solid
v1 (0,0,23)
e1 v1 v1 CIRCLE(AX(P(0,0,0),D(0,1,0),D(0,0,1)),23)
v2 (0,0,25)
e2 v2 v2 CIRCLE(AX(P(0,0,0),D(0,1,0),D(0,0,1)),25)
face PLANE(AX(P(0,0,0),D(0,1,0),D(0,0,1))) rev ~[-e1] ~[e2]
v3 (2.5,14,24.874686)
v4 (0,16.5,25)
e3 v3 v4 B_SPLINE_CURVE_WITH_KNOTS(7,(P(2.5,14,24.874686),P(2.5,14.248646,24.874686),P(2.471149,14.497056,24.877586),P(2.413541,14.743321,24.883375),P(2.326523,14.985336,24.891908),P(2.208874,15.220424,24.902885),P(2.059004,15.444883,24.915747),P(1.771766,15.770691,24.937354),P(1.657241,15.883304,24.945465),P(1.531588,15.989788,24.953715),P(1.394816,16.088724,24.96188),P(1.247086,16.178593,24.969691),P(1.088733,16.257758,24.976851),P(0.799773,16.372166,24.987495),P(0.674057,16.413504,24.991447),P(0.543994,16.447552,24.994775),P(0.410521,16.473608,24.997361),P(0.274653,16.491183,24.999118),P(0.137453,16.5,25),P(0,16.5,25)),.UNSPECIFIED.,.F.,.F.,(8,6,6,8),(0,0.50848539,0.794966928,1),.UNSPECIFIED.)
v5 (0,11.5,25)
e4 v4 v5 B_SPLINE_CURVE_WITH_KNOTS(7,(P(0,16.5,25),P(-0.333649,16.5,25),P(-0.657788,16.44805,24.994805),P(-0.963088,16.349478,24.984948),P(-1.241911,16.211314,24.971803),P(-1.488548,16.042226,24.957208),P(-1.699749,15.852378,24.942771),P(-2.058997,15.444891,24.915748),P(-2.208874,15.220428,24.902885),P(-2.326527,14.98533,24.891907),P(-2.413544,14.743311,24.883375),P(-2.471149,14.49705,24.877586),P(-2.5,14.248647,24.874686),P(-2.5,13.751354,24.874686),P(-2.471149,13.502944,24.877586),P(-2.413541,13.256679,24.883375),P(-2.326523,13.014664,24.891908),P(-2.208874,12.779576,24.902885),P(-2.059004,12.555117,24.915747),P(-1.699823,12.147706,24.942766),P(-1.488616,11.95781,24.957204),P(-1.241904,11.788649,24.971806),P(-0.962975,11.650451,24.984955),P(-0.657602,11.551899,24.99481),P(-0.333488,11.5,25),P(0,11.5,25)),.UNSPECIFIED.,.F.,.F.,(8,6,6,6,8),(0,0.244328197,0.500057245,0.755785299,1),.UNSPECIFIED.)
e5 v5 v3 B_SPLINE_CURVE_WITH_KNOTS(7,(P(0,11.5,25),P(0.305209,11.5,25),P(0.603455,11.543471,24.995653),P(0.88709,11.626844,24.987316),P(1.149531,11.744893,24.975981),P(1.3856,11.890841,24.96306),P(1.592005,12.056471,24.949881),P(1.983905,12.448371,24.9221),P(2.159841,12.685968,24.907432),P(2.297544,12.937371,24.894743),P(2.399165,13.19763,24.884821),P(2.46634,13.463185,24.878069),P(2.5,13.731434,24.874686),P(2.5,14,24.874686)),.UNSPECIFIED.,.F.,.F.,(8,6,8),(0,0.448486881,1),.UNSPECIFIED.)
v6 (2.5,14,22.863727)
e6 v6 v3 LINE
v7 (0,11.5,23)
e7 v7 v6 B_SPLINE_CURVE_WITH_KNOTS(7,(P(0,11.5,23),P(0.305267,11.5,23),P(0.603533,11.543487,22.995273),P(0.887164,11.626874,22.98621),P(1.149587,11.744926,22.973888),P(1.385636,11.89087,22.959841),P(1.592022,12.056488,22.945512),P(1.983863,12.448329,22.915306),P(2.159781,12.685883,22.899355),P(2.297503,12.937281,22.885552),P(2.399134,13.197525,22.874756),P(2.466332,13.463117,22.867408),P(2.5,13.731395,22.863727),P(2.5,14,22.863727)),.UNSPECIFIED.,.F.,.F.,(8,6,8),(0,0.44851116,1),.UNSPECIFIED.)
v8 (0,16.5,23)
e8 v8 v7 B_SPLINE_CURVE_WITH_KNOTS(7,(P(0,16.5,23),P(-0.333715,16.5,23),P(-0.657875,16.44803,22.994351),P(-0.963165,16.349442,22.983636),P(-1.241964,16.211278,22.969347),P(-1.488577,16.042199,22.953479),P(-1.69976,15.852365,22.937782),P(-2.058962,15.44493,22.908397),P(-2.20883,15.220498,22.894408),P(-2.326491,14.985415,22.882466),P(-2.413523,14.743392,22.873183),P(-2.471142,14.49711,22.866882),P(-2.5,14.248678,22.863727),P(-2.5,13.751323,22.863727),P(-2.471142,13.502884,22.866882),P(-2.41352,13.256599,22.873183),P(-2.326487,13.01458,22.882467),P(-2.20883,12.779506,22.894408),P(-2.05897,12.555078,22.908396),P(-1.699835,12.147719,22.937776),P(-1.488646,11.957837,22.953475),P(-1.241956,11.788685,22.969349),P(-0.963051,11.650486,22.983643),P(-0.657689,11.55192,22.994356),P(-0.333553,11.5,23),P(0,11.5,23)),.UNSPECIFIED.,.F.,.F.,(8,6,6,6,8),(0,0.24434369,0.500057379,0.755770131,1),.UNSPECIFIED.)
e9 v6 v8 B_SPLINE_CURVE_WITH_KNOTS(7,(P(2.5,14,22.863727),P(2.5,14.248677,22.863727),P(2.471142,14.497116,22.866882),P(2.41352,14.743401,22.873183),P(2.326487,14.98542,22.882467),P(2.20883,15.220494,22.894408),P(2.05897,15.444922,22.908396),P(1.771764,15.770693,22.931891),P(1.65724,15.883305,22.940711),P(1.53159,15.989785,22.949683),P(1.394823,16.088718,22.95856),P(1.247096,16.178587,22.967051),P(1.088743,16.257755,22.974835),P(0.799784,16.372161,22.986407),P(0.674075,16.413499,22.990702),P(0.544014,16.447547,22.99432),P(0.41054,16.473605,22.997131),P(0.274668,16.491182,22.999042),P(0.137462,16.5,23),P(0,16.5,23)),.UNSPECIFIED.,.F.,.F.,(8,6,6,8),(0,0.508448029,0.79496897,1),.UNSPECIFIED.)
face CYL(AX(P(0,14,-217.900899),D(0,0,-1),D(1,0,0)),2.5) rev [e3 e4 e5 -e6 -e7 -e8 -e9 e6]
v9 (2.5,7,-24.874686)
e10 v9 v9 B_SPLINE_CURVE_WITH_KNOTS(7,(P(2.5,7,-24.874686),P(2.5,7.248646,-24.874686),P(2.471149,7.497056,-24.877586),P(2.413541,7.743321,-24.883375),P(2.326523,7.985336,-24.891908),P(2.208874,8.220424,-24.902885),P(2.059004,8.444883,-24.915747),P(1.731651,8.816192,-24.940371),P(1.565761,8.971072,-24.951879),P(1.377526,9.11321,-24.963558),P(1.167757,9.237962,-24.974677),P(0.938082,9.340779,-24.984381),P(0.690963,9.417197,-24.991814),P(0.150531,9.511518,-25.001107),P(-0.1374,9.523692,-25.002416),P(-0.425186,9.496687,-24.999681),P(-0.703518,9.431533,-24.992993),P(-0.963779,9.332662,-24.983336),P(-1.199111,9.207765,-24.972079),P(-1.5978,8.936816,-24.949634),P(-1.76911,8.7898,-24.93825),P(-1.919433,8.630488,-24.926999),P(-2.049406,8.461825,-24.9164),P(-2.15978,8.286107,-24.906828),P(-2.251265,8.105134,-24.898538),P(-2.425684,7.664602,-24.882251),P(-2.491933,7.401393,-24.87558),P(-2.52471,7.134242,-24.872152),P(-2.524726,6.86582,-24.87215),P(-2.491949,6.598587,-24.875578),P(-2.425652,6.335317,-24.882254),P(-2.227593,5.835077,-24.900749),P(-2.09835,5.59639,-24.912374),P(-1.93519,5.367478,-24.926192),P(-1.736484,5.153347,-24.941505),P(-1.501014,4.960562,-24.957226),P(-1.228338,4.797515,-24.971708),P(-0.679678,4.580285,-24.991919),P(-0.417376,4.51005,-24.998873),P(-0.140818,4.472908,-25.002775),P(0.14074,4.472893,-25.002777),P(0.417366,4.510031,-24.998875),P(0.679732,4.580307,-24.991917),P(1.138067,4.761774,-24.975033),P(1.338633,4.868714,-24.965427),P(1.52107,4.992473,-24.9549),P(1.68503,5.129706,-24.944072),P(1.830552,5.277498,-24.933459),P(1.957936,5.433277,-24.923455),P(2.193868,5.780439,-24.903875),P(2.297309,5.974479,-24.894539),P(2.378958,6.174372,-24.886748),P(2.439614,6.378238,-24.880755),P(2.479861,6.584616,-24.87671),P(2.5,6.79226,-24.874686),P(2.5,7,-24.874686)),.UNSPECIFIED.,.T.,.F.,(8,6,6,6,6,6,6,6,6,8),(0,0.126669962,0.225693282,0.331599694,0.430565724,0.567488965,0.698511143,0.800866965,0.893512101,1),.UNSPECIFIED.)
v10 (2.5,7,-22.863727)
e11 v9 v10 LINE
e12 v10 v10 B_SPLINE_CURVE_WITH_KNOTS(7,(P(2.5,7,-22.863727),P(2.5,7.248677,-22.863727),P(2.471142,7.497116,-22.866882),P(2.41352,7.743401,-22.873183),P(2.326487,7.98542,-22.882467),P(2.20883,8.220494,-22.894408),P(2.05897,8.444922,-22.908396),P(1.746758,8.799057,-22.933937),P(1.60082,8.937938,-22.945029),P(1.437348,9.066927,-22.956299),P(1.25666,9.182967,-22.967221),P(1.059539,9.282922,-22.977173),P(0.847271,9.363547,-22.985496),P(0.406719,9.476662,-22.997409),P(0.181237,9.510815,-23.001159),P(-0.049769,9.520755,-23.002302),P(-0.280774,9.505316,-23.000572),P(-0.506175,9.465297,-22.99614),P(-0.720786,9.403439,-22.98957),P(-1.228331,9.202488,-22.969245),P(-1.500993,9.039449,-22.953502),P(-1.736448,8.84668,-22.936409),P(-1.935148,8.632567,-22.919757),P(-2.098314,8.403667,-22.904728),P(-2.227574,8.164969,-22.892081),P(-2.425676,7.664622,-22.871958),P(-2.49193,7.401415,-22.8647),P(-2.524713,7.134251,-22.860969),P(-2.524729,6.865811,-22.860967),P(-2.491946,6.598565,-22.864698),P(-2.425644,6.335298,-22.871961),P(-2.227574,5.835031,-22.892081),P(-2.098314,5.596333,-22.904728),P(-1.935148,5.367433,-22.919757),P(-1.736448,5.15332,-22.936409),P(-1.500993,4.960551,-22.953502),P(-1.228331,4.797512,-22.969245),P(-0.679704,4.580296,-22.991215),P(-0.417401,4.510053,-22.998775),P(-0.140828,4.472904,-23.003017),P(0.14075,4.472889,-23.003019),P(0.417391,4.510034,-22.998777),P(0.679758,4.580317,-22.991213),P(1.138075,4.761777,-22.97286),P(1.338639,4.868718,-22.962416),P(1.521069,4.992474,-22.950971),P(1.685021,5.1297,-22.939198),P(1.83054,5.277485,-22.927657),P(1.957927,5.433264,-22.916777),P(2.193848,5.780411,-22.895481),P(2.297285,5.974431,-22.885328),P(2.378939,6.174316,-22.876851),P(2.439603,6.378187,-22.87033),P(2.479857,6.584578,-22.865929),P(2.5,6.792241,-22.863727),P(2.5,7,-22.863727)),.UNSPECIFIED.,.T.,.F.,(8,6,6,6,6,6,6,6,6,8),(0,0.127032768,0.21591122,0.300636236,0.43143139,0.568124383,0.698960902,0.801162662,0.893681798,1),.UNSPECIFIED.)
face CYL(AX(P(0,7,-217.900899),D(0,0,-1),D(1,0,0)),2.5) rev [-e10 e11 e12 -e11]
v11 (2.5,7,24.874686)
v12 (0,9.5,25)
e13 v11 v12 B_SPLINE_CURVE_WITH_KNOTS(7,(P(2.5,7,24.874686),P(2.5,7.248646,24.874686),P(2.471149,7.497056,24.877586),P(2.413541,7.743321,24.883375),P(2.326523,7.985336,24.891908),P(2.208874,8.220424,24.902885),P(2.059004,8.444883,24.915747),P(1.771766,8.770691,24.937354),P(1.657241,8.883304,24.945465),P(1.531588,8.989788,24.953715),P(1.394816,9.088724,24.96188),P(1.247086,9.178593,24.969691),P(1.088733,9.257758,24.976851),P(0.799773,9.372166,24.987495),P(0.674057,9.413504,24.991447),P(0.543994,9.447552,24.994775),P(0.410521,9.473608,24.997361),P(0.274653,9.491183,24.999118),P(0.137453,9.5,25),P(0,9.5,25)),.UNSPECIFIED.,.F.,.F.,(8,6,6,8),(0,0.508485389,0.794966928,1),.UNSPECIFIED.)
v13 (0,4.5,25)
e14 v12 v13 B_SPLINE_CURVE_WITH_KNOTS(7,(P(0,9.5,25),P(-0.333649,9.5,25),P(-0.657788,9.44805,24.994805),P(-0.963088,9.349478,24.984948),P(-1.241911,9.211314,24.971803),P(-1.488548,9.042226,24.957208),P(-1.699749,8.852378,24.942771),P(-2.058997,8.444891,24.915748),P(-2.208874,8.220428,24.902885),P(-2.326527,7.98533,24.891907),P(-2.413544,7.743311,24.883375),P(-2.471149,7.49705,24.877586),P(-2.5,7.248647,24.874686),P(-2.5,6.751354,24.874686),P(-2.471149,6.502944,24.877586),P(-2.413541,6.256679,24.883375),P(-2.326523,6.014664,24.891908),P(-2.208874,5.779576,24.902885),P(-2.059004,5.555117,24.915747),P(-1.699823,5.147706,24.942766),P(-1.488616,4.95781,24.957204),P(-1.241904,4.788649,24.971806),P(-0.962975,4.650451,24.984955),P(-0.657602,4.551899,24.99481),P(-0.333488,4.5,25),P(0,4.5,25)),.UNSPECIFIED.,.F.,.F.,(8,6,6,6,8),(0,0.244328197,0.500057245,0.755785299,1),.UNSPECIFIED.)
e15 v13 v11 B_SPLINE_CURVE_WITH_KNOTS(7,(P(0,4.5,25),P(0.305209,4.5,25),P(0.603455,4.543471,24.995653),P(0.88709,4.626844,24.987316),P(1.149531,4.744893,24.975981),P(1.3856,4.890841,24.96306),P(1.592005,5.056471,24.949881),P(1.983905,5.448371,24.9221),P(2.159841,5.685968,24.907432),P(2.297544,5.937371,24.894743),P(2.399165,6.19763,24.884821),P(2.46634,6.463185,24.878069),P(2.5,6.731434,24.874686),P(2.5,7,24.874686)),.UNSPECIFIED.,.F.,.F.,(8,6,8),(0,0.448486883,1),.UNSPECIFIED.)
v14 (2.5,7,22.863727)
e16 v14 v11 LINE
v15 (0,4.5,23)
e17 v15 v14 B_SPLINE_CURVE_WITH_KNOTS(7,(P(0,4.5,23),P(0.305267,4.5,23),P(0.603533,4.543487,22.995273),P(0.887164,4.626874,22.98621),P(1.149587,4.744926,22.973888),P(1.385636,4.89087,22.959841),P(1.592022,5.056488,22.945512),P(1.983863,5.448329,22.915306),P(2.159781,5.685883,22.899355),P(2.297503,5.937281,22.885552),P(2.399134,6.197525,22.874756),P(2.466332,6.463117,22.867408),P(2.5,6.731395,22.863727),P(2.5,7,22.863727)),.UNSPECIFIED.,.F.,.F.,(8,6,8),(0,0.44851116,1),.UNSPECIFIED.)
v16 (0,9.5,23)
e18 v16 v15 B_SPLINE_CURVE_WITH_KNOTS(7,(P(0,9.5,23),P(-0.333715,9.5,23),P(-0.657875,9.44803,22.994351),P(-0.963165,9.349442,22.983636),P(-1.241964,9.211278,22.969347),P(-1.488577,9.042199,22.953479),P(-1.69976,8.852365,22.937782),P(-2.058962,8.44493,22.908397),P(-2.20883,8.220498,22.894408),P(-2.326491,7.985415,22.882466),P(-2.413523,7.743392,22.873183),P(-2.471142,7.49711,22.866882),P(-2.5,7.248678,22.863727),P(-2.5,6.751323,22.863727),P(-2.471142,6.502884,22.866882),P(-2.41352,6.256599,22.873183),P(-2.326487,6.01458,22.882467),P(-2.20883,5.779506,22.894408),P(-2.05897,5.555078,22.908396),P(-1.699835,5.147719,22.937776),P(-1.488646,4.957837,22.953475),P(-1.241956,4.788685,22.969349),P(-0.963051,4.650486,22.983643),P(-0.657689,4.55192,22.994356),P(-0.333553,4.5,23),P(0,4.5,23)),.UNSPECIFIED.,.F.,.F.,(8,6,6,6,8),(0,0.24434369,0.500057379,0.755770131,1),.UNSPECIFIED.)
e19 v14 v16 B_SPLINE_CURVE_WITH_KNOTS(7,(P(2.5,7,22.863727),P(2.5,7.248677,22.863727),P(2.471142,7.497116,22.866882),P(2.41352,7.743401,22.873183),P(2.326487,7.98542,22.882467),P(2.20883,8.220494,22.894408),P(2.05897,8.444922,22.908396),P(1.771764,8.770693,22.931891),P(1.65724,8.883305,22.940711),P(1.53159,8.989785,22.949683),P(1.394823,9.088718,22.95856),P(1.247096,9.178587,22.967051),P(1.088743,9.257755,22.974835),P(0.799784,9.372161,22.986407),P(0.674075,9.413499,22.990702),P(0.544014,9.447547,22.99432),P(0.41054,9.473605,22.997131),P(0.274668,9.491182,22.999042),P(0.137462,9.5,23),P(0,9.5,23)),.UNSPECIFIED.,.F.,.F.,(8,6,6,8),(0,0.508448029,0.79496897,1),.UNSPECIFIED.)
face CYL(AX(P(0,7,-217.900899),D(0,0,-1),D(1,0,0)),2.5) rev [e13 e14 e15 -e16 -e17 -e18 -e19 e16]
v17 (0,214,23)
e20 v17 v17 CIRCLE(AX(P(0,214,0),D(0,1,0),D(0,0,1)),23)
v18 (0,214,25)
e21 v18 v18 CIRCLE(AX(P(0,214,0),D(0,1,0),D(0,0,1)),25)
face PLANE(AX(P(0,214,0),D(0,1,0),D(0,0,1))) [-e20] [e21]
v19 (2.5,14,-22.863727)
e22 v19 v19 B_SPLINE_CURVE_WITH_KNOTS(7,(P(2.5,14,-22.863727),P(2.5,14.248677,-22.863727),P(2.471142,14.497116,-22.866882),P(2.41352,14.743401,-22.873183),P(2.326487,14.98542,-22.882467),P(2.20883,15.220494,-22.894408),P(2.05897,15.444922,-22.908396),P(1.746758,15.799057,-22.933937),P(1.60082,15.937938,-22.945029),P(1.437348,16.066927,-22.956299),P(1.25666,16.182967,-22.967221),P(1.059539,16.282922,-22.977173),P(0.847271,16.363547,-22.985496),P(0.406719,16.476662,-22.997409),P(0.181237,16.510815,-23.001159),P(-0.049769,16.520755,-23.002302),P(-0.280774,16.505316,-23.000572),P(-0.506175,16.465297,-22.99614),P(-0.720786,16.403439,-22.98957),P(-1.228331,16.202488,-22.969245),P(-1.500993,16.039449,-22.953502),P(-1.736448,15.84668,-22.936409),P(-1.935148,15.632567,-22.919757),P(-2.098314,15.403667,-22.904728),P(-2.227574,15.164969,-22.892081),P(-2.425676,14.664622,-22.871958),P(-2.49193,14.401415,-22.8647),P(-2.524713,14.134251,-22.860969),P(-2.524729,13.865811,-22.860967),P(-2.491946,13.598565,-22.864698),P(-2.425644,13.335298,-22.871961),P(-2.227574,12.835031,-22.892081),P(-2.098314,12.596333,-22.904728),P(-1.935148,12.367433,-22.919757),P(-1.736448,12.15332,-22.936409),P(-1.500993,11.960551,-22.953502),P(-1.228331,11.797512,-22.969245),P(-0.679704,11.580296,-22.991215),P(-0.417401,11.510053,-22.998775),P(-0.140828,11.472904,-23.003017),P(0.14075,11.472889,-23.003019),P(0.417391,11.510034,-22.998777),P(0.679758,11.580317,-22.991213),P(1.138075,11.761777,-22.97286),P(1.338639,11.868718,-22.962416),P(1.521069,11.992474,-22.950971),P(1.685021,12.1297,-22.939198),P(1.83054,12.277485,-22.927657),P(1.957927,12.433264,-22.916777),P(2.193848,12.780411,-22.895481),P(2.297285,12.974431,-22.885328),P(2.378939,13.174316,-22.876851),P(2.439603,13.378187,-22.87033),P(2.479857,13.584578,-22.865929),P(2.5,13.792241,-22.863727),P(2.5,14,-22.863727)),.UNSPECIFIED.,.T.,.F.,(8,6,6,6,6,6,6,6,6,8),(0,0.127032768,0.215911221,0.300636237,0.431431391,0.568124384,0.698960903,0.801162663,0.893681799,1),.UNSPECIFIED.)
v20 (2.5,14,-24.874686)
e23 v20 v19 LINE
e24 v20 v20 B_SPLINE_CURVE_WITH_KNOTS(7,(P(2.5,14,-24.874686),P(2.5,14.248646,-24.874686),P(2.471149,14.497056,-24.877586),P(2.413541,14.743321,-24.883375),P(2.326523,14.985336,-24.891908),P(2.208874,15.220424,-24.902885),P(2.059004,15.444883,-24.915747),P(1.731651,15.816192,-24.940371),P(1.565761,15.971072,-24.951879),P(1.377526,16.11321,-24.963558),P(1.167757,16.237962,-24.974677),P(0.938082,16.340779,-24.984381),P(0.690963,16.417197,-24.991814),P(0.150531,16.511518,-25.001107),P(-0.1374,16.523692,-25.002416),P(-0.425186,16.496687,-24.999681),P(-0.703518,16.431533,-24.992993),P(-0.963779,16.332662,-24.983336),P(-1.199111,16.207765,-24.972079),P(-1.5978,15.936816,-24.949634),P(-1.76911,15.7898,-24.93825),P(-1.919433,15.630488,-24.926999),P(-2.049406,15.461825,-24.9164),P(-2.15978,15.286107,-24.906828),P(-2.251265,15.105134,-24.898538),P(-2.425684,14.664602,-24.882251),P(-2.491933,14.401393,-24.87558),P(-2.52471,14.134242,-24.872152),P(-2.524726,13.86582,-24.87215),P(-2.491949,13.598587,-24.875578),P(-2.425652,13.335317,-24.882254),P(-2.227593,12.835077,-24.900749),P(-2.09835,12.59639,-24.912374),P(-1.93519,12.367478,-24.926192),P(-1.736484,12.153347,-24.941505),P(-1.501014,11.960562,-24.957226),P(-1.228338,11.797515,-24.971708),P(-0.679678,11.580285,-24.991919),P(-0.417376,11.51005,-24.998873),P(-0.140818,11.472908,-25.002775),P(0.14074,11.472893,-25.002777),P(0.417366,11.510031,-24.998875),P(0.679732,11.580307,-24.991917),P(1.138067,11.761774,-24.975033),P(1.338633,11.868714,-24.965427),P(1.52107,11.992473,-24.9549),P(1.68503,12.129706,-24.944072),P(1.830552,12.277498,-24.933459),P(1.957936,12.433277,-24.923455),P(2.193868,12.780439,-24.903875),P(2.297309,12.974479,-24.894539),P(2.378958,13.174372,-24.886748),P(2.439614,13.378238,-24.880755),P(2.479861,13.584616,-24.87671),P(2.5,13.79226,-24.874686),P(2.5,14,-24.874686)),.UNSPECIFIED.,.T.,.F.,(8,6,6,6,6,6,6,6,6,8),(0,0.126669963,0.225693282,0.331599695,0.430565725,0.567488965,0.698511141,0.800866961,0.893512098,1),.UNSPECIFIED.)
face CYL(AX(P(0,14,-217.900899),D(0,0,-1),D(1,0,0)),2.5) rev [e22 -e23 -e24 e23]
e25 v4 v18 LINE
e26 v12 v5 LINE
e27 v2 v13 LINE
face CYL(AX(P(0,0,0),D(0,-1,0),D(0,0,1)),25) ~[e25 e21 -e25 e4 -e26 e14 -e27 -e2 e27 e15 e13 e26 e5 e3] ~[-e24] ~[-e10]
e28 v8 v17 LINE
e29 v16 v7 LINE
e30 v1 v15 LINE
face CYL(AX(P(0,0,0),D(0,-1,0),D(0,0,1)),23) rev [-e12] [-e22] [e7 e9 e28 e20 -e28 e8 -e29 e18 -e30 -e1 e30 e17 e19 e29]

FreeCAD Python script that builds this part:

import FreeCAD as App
import Part
import Sketcher
from FreeCAD import Vector

doc = App.newDocument("Part")
body = doc.addObject("PartDesign::Body", "Body")

sketch1 = body.newObject("Sketcher::SketchObject", "Sketch")
sketch1.AttachmentSupport = (doc.getObject("XZ_Plane"), [""])
sketch1.MapMode = "FlatFace"
sketch1.addGeometry([
    Part.Circle(Vector(0, 0, 0), Vector(0, 0, 1), 25),
    Part.Circle(Vector(0, 0, 0), Vector(0, 0, 1), 23),
], False)
sketch1.addConstraint([
    Sketcher.Constraint("Coincident", 0, 3, -1, 1),
    Sketcher.Constraint("Coincident", 1, 3, -1, 1),
    Sketcher.Constraint("Diameter", 0, 50.0),
    Sketcher.Constraint("Diameter", 1, 46.0),
])
pad1 = body.newObject("PartDesign::Pad", "Pad")
pad1.Profile = sketch1
pad1.Length = 214
pad1.Reversed = True

sketch2 = body.newObject("Sketcher::SketchObject", "Sketch001")
sketch2.AttachmentSupport = (doc.getObject("XY_Plane"), [""])
sketch2.MapMode = "FlatFace"
sketch2.addGeometry([
    Part.Circle(Vector(0, 7, 0), Vector(0, 0, 1), 2.5),
    Part.Circle(Vector(0, 14, 0), Vector(0, 0, 1), 2.5),
], False)
sketch2.addConstraint([
    Sketcher.Constraint("Equal", 0, 1),
    Sketcher.Constraint("PointOnObject", 0, 3, -2),
    Sketcher.Constraint("PointOnObject", 1, 3, -2),
    Sketcher.Constraint("Diameter", 0, 5.0),
    Sketcher.Constraint("DistanceY", -1, 1, 0, 3, 7.0),
    Sketcher.Constraint("DistanceY", -1, 1, 1, 3, 14.0),
])
pocket1 = body.newObject("PartDesign::Pocket", "Pocket")
pocket1.Profile = sketch2
pocket1.Type = "ThroughAll"
pocket1.Midplane = True

doc.recompute()
